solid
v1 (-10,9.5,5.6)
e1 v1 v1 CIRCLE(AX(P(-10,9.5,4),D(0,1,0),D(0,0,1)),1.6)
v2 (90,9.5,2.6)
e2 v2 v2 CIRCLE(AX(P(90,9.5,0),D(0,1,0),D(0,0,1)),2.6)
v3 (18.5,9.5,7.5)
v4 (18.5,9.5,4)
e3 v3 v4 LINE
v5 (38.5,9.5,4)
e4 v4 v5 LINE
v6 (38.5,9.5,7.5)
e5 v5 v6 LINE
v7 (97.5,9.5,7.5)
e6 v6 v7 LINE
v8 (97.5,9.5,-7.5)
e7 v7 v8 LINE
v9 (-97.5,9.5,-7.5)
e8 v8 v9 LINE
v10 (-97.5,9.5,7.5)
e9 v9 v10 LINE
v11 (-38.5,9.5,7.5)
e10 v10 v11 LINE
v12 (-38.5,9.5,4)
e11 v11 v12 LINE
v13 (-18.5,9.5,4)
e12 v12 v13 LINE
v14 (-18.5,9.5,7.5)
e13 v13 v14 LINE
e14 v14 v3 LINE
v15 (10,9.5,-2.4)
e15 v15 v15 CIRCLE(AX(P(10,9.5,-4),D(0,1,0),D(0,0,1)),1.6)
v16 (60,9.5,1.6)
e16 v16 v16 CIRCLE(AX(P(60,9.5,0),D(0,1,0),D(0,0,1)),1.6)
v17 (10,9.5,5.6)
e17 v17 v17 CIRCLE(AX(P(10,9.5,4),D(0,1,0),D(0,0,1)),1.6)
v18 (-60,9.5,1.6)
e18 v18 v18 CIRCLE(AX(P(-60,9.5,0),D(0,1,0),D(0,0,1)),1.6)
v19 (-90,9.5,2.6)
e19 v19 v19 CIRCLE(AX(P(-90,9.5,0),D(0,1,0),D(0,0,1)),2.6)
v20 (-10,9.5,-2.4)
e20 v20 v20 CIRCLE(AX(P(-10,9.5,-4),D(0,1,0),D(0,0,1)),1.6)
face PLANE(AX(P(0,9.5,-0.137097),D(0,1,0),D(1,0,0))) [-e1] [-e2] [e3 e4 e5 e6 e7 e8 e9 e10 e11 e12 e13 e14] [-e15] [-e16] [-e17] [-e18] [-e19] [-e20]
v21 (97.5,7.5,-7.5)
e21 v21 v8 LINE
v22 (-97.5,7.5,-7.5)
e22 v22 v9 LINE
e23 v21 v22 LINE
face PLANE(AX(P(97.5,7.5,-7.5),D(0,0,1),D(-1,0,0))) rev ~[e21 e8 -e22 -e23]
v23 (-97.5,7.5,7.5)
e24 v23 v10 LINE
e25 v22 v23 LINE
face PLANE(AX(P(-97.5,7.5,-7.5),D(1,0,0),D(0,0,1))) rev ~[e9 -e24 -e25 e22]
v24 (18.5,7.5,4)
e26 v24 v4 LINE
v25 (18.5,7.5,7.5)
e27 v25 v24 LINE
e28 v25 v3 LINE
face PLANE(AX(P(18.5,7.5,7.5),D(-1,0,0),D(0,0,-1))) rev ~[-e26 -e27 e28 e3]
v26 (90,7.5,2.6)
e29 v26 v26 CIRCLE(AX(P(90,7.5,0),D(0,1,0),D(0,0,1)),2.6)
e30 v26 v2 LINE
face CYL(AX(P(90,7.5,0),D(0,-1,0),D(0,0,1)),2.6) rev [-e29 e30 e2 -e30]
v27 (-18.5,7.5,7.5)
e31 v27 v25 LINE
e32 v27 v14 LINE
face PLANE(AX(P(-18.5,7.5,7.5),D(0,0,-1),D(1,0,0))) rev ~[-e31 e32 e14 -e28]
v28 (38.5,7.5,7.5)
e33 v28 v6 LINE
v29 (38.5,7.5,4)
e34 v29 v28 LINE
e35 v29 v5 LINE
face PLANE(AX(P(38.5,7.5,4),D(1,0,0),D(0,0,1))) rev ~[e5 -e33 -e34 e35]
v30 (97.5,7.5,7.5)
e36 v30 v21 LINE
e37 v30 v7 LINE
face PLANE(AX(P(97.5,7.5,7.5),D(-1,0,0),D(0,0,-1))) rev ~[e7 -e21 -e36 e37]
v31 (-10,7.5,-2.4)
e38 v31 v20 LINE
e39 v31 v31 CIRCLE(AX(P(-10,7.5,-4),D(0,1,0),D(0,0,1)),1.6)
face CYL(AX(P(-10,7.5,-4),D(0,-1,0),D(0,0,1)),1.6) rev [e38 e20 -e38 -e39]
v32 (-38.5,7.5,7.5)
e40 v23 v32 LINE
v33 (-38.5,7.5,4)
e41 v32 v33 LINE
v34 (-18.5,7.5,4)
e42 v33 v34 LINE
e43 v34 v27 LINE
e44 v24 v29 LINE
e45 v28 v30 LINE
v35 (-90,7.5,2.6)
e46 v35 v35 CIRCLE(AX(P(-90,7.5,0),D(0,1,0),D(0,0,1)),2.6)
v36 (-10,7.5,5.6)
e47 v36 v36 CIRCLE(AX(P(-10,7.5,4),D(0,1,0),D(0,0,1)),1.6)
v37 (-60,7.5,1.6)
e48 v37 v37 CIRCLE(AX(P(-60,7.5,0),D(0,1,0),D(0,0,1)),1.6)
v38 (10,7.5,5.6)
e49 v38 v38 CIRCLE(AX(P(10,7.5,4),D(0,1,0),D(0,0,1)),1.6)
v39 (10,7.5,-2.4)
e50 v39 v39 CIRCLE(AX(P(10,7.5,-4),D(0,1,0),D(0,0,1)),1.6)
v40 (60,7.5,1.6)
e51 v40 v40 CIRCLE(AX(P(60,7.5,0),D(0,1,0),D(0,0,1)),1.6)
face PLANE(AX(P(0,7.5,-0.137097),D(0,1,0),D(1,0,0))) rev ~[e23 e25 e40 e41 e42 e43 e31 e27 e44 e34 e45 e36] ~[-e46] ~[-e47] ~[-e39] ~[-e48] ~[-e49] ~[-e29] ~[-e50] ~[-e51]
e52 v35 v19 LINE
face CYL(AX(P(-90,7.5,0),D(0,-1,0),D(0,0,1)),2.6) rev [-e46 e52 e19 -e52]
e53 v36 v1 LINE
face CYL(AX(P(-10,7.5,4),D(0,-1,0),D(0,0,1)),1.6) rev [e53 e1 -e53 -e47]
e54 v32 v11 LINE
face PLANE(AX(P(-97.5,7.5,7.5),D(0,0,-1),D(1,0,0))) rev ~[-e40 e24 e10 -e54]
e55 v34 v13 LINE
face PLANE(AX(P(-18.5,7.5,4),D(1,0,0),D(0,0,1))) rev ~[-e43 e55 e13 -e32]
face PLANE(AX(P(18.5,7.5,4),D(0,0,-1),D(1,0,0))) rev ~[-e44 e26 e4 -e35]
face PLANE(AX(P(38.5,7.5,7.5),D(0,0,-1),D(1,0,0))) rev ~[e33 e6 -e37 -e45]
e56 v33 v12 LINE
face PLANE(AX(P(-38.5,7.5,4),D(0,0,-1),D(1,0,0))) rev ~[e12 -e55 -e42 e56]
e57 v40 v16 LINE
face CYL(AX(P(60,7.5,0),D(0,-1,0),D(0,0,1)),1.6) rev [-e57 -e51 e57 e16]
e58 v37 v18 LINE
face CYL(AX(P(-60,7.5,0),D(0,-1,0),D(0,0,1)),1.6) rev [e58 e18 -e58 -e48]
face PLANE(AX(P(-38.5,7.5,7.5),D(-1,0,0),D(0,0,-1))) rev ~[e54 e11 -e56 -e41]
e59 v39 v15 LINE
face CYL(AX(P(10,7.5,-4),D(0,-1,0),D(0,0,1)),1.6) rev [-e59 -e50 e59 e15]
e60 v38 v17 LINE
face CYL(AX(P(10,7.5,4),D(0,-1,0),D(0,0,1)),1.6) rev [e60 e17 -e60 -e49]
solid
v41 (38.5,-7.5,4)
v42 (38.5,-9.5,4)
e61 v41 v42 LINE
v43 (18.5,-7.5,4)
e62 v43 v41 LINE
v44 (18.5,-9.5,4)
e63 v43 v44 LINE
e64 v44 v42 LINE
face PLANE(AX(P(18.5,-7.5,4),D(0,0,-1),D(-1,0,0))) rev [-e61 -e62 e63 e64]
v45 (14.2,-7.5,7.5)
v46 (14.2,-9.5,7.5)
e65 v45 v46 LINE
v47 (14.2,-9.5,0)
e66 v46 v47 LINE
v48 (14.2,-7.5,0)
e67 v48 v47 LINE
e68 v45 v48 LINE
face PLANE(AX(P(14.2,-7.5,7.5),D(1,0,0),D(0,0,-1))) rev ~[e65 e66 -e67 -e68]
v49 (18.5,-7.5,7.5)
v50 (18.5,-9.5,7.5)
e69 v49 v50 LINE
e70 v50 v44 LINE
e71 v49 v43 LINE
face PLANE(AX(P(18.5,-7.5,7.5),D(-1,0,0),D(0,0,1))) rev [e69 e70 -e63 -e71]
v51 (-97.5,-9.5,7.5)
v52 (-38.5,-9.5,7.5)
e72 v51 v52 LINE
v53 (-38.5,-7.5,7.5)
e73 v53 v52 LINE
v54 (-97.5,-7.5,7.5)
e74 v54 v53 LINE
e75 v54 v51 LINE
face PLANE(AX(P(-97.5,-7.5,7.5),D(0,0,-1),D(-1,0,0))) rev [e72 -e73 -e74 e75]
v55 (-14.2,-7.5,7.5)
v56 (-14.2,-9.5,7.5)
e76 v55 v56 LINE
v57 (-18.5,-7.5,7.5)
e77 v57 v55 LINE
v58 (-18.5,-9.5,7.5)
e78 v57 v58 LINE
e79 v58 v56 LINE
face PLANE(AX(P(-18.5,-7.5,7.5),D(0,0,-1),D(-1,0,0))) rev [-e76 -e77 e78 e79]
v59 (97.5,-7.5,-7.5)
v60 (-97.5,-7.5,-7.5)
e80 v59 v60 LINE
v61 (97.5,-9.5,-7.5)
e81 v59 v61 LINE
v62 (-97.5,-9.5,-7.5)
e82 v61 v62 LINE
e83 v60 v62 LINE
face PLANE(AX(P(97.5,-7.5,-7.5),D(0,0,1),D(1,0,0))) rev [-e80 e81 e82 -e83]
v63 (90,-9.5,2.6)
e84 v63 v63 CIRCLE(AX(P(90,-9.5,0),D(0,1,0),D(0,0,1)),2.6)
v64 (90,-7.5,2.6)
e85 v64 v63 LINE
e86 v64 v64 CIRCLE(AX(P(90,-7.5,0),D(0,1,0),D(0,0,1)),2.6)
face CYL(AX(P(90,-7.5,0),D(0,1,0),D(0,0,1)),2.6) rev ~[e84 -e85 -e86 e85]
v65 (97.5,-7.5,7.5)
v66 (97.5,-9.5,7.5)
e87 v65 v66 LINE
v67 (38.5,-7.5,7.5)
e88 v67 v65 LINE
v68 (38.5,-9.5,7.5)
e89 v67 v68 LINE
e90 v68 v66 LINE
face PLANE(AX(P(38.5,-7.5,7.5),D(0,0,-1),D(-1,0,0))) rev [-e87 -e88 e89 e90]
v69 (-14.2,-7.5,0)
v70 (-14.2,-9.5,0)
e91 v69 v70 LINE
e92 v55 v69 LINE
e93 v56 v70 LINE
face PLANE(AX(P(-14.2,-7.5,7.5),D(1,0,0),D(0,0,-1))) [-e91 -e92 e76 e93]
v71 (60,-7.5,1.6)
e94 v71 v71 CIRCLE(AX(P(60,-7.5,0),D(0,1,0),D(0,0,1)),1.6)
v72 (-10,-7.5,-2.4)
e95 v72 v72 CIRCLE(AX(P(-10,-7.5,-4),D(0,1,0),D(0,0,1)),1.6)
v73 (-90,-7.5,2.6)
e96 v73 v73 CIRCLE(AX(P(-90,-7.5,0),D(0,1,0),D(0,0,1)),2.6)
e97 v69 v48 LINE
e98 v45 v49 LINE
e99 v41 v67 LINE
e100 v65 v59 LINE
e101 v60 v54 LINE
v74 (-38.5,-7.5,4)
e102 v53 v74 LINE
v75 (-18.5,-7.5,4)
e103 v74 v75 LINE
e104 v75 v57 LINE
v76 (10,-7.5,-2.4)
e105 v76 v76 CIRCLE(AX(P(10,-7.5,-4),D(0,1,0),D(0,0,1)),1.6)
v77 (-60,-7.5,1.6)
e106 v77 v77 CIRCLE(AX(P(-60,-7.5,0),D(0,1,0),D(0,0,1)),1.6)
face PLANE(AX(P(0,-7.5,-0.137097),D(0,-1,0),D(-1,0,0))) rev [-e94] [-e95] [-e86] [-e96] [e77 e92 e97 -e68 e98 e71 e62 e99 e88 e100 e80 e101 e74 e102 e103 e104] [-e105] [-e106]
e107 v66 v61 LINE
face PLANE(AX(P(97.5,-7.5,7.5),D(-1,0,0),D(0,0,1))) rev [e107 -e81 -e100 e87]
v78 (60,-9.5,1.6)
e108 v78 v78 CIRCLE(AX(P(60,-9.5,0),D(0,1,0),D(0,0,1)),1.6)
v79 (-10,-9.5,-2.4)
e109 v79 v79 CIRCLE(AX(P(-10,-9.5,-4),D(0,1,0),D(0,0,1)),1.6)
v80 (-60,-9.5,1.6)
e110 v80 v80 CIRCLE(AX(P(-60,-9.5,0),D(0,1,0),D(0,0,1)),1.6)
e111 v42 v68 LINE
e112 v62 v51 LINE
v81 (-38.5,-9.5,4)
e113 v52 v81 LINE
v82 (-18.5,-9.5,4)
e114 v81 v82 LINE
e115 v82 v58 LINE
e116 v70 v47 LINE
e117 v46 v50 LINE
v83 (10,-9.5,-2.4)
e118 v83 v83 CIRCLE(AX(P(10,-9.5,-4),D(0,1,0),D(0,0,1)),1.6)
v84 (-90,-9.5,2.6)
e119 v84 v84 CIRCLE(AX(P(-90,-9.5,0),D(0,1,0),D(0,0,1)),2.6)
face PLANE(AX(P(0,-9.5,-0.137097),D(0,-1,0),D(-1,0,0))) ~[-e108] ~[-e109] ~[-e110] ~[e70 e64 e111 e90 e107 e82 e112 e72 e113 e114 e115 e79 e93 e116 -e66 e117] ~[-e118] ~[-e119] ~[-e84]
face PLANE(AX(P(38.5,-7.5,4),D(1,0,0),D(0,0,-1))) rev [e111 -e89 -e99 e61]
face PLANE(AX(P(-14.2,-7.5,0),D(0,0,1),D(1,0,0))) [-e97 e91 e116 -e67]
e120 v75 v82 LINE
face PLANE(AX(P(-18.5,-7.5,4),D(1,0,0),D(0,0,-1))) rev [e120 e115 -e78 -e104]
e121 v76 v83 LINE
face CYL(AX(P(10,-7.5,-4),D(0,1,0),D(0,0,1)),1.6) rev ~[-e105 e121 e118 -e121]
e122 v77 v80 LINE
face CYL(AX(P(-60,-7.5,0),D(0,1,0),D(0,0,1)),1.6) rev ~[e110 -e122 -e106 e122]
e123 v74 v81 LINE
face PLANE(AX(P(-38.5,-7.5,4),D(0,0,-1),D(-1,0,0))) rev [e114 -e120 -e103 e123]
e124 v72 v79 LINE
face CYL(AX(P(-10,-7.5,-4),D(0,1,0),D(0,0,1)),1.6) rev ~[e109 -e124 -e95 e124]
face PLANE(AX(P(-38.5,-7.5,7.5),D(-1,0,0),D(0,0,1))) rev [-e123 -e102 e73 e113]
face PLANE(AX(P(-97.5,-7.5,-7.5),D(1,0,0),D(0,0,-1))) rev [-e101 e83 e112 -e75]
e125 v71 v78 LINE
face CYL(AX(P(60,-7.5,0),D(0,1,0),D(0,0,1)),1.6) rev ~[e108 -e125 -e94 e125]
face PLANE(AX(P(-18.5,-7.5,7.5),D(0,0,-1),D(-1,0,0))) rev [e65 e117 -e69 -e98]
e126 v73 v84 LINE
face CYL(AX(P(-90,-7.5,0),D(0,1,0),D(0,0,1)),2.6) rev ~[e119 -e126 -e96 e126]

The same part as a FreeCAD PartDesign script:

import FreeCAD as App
import Part
import Sketcher

doc = App.newDocument("Part")
body = doc.addObject("PartDesign::Body", "Body")

# Sketch on XZ plane
sketch1 = doc.addObject("Sketcher::SketchObject", "Sketch")
body.addObject(sketch1)
sketch1.AttachmentSupport = (doc.XZ_Plane, [""])
sketch1.MapMode = "FlatFace"
sketch1.AttachmentOffset = App.Placement(App.Vector(0, 0, -7.5), App.Rotation())
sketch1.addGeometry(Part.LineSegment(App.Vector(97.5, -7.5, 0), App.Vector(-97.5, -7.5, 0)), False)
sketch1.addGeometry(Part.LineSegment(App.Vector(-97.5, -7.5, 0), App.Vector(-97.5, 7.5, 0)), False)
sketch1.addGeometry(Part.LineSegment(App.Vector(-97.5, 7.5, 0), App.Vector(-38.5, 7.5, 0)), False)
sketch1.addGeometry(Part.LineSegment(App.Vector(-38.5, 7.5, 0), App.Vector(-38.5, 4, 0)), False)
sketch1.addGeometry(Part.LineSegment(App.Vector(-38.5, 4, 0), App.Vector(-18.5, 4, 0)), False)
sketch1.addGeometry(Part.LineSegment(App.Vector(-18.5, 4, 0), App.Vector(-18.5, 7.5, 0)), False)
sketch1.addGeometry(Part.LineSegment(App.Vector(-18.5, 7.5, 0), App.Vector(18.5, 7.5, 0)), False)
sketch1.addGeometry(Part.LineSegment(App.Vector(18.5, 7.5, 0), App.Vector(18.5, 4, 0)), False)
sketch1.addGeometry(Part.LineSegment(App.Vector(18.5, 4, 0), App.Vector(38.5, 4, 0)), False)
sketch1.addGeometry(Part.LineSegment(App.Vector(38.5, 4, 0), App.Vector(38.5, 7.5, 0)), False)
sketch1.addGeometry(Part.LineSegment(App.Vector(38.5, 7.5, 0), App.Vector(97.5, 7.5, 0)), False)
sketch1.addGeometry(Part.LineSegment(App.Vector(97.5, 7.5, 0), App.Vector(97.5, -7.5, 0)), False)
sketch1.addGeometry(Part.Circle(App.Vector(-10, 4, 0), App.Vector(0, 0, 1), 1.6), False)
sketch1.addGeometry(Part.Circle(App.Vector(10, 4, 0), App.Vector(0, 0, 1), 1.6), False)
sketch1.addGeometry(Part.Circle(App.Vector(-90, 0, 0), App.Vector(0, 0, 1), 2.6), False)
sketch1.addGeometry(Part.Circle(App.Vector(-60, 0, 0), App.Vector(0, 0, 1), 1.6), False)
sketch1.addGeometry(Part.Circle(App.Vector(-10, -4, 0), App.Vector(0, 0, 1), 1.6), False)
sketch1.addGeometry(Part.Circle(App.Vector(60, 0, 0), App.Vector(0, 0, 1), 1.6), False)
sketch1.addGeometry(Part.Circle(App.Vector(90, 0, 0), App.Vector(0, 0, 1), 2.6), False)
sketch1.addGeometry(Part.Circle(App.Vector(10, -4, 0), App.Vector(0, 0, 1), 1.6), False)
sketch1.addConstraint(Sketcher.Constraint("Coincident", 0, 2, 1, 1))
sketch1.addConstraint(Sketcher.Constraint("Coincident", 1, 2, 2, 1))
sketch1.addConstraint(Sketcher.Constraint("Coincident", 2, 2, 3, 1))
sketch1.addConstraint(Sketcher.Constraint("Coincident", 3, 2, 4, 1))
sketch1.addConstraint(Sketcher.Constraint("Coincident", 4, 2, 5, 1))
sketch1.addConstraint(Sketcher.Constraint("Coincident", 5, 2, 6, 1))
sketch1.addConstraint(Sketcher.Constraint("Coincident", 6, 2, 7, 1))
sketch1.addConstraint(Sketcher.Constraint("Coincident", 7, 2, 8, 1))
sketch1.addConstraint(Sketcher.Constraint("Coincident", 8, 2, 9, 1))
sketch1.addConstraint(Sketcher.Constraint("Coincident", 9, 2, 10, 1))
sketch1.addConstraint(Sketcher.Constraint("Coincident", 10, 2, 11, 1))
sketch1.addConstraint(Sketcher.Constraint("Coincident", 11, 2, 0, 1))
sketch1.addConstraint(Sketcher.Constraint("Horizontal", 0))
sketch1.addConstraint(Sketcher.Constraint("Vertical", 1))
sketch1.addConstraint(Sketcher.Constraint("Horizontal", 2))
sketch1.addConstraint(Sketcher.Constraint("Vertical", 3))
sketch1.addConstraint(Sketcher.Constraint("Horizontal", 4))
sketch1.addConstraint(Sketcher.Constraint("Vertical", 5))
sketch1.addConstraint(Sketcher.Constraint("Horizontal", 6))
sketch1.addConstraint(Sketcher.Constraint("Vertical", 7))
sketch1.addConstraint(Sketcher.Constraint("Horizontal", 8))
sketch1.addConstraint(Sketcher.Constraint("Vertical", 9))
sketch1.addConstraint(Sketcher.Constraint("Horizontal", 10))
sketch1.addConstraint(Sketcher.Constraint("Vertical", 11))
sketch1.addConstraint(Sketcher.Constraint("Equal", 12, 13))
sketch1.addConstraint(Sketcher.Constraint("Equal", 13, 15))
sketch1.addConstraint(Sketcher.Constraint("Equal", 15, 16))
sketch1.addConstraint(Sketcher.Constraint("Equal", 16, 17))
sketch1.addConstraint(Sketcher.Constraint("Equal", 14, 18))
sketch1.addConstraint(Sketcher.Constraint("Equal", 17, 19))
sketch1.addConstraint(Sketcher.Constraint("Symmetric", 13, 3, 16, 3, -1, 1))
sketch1.addConstraint(Sketcher.Constraint("Symmetric", 15, 3, 17, 3, -1, 1))
sketch1.addConstraint(Sketcher.Constraint("Symmetric", 14, 3, 18, 3, -1, 1))
sketch1.addConstraint(Sketcher.Constraint("Symmetric", 12, 3, 19, 3, -1, 1))
sketch1.addConstraint(Sketcher.Constraint("Symmetric", 0, 2, 10, 2, -1, 1))
sketch1.addConstraint(Sketcher.Constraint("Symmetric", 12, 3, 13, 3, -2))
sketch1.addConstraint(Sketcher.Constraint("Symmetric", 4, 2, 7, 2, -2))
sketch1.addConstraint(Sketcher.Constraint("Symmetric", 2, 2, 9, 2, -2))
sketch1.addConstraint(Sketcher.Constraint("PointOnObject", 14, 3, -1))
sketch1.addConstraint(Sketcher.Constraint("PointOnObject", 15, 3, -1))
sketch1.addConstraint(Sketcher.Constraint("Horizontal", 13, 3, 3, 2))
sketch1.addConstraint(Sketcher.Constraint("Horizontal", 2, 2, 5, 2))
sketch1.addConstraint(Sketcher.Constraint("Diameter", 12, 3.2))
sketch1.addConstraint(Sketcher.Constraint("Diameter", 14, 5.2))
sketch1.addConstraint(Sketcher.Constraint("DistanceX", 0, 2, 0, 1, 195.0))
sketch1.addConstraint(Sketcher.Constraint("DistanceX", 2, 1, 2, 2, 59.0))
sketch1.addConstraint(Sketcher.Constraint("DistanceX", 4, 1, 4, 2, 20.0))
sketch1.addConstraint(Sketcher.Constraint("DistanceY", 1, 1, 1, 2, 15.0))
sketch1.addConstraint(Sketcher.Constraint("DistanceY", 3, 2, 3, 1, 3.5))
sketch1.addConstraint(Sketcher.Constraint("DistanceX", 12, 3, -1, 1, 10.0))
sketch1.addConstraint(Sketcher.Constraint("DistanceX", 14, 3, -1, 1, 90.0))
sketch1.addConstraint(Sketcher.Constraint("DistanceX", 15, 3, -1, 1, 60.0))
pad1 = doc.addObject("PartDesign::Pad", "Pad")
body.addObject(pad1)
pad1.Profile = sketch1
pad1.Length = 2
pad1.Reversed = True
body2 = doc.addObject("PartDesign::Body", "Body001")
doc.recompute()

mirroring = doc.addObject("Part::Mirroring", "Mirroring")
mirroring.Source = body
mirroring.Base = App.Vector(0, 0, 0)
mirroring.Normal = App.Vector(0, 1, 0)
body2.BaseFeature = mirroring
doc.recompute()

# Sketch on XZ plane
sketch2 = doc.addObject("Sketcher::SketchObject", "Sketch001")
body2.addObject(sketch2)
sketch2.AttachmentSupport = (doc.getObject("XZ_Plane001"), [""])
sketch2.MapMode = "FlatFace"
sketch2.AttachmentOffset = App.Placement(App.Vector(0, 0, 7.5), App.Rotation())
sketch2.addGeometry(Part.LineSegment(App.Vector(-14.2, 0, 0), App.Vector(-14.2, 7.5, 0)), False)
sketch2.addGeometry(Part.LineSegment(App.Vector(-14.2, 7.5, 0), App.Vector(14.2, 7.5, 0)), False)
sketch2.addGeometry(Part.LineSegment(App.Vector(14.2, 7.5, 0), App.Vector(14.2, 0, 0)), False)
sketch2.addGeometry(Part.LineSegment(App.Vector(14.2, 0, 0), App.Vector(-14.2, 0, 0)), False)
sketch2.addConstraint(Sketcher.Constraint("Coincident", 0, 2, 1, 1))
sketch2.addConstraint(Sketcher.Constraint("Coincident", 1, 2, 2, 1))
sketch2.addConstraint(Sketcher.Constraint("Coincident", 2, 2, 3, 1))
sketch2.addConstraint(Sketcher.Constraint("Coincident", 3, 2, 0, 1))
sketch2.addConstraint(Sketcher.Constraint("Vertical", 0))
sketch2.addConstraint(Sketcher.Constraint("Horizontal", 1))
sketch2.addConstraint(Sketcher.Constraint("Vertical", 2))
sketch2.addConstraint(Sketcher.Constraint("Horizontal", 3))
sketch2.addConstraint(Sketcher.Constraint("Symmetric", 2, 2, 3, 2, -1, 1))
sketch2.addConstraint(Sketcher.Constraint("DistanceX", 1, 1, 1, 2, 28.4))
sketch2.addConstraint(Sketcher.Constraint("DistanceY", 0, 1, 0, 2, 7.5))
pocket1 = doc.addObject("PartDesign::Pocket", "Pocket")
body2.addObject(pocket1)
pocket1.Profile = sketch2
pocket1.Type = "ThroughAll"
pocket1.Reversed = True
mirroring.Visibility = False

doc.recompute()
